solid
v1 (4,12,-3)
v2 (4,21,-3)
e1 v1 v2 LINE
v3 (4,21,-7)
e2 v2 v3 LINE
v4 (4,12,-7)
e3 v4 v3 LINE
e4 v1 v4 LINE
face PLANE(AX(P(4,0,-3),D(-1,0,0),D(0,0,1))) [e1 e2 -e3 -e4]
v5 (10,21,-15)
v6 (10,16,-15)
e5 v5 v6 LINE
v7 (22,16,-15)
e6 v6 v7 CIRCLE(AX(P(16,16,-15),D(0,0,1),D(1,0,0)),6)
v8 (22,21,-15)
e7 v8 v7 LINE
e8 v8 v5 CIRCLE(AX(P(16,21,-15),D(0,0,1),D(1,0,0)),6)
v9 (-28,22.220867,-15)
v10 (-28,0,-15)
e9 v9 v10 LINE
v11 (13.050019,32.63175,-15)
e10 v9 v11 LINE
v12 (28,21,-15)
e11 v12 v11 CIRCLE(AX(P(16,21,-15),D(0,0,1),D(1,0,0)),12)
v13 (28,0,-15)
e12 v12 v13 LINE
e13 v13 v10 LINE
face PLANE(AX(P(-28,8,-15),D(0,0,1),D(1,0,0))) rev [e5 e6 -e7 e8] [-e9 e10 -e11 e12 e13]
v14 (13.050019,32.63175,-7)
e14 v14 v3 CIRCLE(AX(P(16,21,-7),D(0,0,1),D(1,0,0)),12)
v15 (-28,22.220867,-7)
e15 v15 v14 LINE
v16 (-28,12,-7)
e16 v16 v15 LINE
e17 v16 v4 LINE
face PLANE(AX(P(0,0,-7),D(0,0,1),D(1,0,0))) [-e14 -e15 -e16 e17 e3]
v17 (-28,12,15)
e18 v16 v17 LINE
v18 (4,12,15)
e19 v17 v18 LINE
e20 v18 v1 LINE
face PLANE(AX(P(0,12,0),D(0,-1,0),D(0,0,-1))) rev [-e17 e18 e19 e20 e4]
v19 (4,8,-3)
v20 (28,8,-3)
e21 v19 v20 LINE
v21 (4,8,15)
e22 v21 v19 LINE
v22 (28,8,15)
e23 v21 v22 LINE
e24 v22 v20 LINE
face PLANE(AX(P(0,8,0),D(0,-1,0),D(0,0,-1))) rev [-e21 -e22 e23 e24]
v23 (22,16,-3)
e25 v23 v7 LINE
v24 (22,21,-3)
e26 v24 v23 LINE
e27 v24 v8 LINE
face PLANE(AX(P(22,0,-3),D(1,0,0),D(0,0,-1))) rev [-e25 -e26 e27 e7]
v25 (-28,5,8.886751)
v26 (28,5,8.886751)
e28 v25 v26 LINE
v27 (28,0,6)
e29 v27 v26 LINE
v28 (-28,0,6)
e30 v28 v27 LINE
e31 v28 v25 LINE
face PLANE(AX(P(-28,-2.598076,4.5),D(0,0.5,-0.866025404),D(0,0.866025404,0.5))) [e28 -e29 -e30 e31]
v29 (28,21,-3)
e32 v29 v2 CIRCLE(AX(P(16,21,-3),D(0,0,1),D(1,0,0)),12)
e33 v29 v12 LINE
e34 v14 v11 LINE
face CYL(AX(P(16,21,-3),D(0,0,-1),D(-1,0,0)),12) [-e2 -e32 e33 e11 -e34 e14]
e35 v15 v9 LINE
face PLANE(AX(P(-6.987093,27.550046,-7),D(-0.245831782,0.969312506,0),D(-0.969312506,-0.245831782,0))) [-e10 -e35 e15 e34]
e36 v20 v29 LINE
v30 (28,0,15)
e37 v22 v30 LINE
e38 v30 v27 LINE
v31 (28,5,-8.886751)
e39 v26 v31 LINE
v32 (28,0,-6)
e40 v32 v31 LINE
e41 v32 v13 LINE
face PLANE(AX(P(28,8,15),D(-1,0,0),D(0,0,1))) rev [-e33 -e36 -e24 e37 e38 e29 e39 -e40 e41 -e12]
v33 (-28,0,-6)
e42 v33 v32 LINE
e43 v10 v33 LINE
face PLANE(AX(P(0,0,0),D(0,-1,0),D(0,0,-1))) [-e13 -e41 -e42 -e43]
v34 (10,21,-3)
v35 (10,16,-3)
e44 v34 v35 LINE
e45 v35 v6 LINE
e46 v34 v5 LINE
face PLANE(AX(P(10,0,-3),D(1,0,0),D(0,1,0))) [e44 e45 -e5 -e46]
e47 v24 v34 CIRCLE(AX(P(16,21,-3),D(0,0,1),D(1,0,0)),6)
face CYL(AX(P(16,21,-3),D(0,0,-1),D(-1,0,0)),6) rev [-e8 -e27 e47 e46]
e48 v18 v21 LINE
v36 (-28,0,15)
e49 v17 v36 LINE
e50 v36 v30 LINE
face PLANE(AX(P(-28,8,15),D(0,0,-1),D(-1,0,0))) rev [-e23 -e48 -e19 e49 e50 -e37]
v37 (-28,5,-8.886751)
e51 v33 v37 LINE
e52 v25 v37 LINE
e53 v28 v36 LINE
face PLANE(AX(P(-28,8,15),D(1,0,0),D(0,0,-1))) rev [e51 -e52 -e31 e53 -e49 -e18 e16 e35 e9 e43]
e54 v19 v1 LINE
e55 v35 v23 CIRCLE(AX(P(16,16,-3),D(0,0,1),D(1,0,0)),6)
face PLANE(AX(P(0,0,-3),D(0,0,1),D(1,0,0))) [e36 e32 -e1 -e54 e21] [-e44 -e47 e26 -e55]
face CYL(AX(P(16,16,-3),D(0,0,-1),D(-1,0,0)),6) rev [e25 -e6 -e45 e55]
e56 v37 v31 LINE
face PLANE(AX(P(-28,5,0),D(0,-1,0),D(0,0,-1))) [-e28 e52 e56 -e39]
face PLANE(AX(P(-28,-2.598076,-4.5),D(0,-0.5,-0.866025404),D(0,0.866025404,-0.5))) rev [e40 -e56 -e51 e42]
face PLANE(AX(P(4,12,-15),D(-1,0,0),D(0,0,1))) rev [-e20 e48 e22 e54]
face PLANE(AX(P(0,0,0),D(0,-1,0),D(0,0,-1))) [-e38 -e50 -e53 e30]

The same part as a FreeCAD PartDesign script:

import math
import FreeCAD as App
import Part
import Sketcher
from FreeCAD import Vector
Q = App.Units.Quantity

doc = App.newDocument("Part")
body = doc.addObject("PartDesign::Body", "Body")

# Sketch on XZ plane
sketch1 = body.newObject("Sketcher::SketchObject", "Sketch")
sketch1.AttachmentSupport = (doc.getObject("XZ_Plane"), [""])
sketch1.MapMode = "FlatFace"
sketch1.addGeometry(Part.LineSegment(Vector(-28, -15, 0), Vector(-28, 15, 0)), False)
sketch1.addGeometry(Part.LineSegment(Vector(-28, 15, 0), Vector(28, 15, 0)), False)
sketch1.addGeometry(Part.LineSegment(Vector(28, 15, 0), Vector(28, -15, 0)), False)
sketch1.addGeometry(Part.LineSegment(Vector(28, -15, 0), Vector(-28, -15, 0)), False)
sketch1.addConstraint(Sketcher.Constraint("Coincident", 0, 2, 1, 1))
sketch1.addConstraint(Sketcher.Constraint("Coincident", 1, 2, 2, 1))
sketch1.addConstraint(Sketcher.Constraint("Coincident", 2, 2, 3, 1))
sketch1.addConstraint(Sketcher.Constraint("Coincident", 3, 2, 0, 1))
sketch1.addConstraint(Sketcher.Constraint("Vertical", 0))
sketch1.addConstraint(Sketcher.Constraint("Horizontal", 1))
sketch1.addConstraint(Sketcher.Constraint("Vertical", 2))
sketch1.addConstraint(Sketcher.Constraint("Horizontal", 3))
sketch1.addConstraint(Sketcher.Constraint("Symmetric", 0, 2, 2, 2, -1, 1))
sketch1.addConstraint(Sketcher.Constraint("DistanceX", 1, 1, 1, 2, Q("56 mm")))
sketch1.addConstraint(Sketcher.Constraint("DistanceY", 0, 1, 0, 2, Q("30 mm")))
pad1 = body.newObject("PartDesign::Pad", "Pad")
pad1.Profile = sketch1
pad1.Length = 8
pad1.Reversed = True

# Sketch on XZ plane
sketch2 = body.newObject("Sketcher::SketchObject", "Sketch001")
sketch2.AttachmentSupport = (doc.getObject("XZ_Plane"), [""])
sketch2.MapMode = "FlatFace"
sketch2.AttachmentOffset = App.Placement(Vector(0, 0, -8), App.Rotation())
sketch2.addGeometry(Part.LineSegment(Vector(-28, -15, 0), Vector(-28, 15, 0)), False)
sketch2.addGeometry(Part.LineSegment(Vector(-28, 15, 0), Vector(4, 15, 0)), False)
sketch2.addGeometry(Part.LineSegment(Vector(4, 15, 0), Vector(4, -15, 0)), False)
sketch2.addGeometry(Part.LineSegment(Vector(4, -15, 0), Vector(-28, -15, 0)), False)
sketch2.addConstraint(Sketcher.Constraint("Coincident", 0, 2, 1, 1))
sketch2.addConstraint(Sketcher.Constraint("Coincident", 1, 2, 2, 1))
sketch2.addConstraint(Sketcher.Constraint("Coincident", 2, 2, 3, 1))
sketch2.addConstraint(Sketcher.Constraint("Coincident", 3, 2, 0, 1))
sketch2.addConstraint(Sketcher.Constraint("Vertical", 0))
sketch2.addConstraint(Sketcher.Constraint("Horizontal", 1))
sketch2.addConstraint(Sketcher.Constraint("Vertical", 2))
sketch2.addConstraint(Sketcher.Constraint("Horizontal", 3))
sketch2.addConstraint(Sketcher.Constraint("DistanceX", 1, 1, 1, 2, Q("32 mm")))
sketch2.addConstraint(Sketcher.Constraint("DistanceY", 0, 1, 0, 2, Q("30 mm")))
sketch2.addConstraint(Sketcher.Constraint("DistanceX", 0, 2, -1, 1, Q("28 mm")))
sketch2.addConstraint(Sketcher.Constraint("DistanceY", -1, 1, 0, 2, Q("15 mm")))
pad2 = body.newObject("PartDesign::Pad", "Pad001")
pad2.Profile = sketch2
pad2.Length = 4
pad2.Reversed = True

# Sketch on XY plane
sketch3 = body.newObject("Sketcher::SketchObject", "Sketch002")
sketch3.AttachmentSupport = (doc.getObject("XY_Plane"), [""])
sketch3.MapMode = "FlatFace"
sketch3.AttachmentOffset = App.Placement(Vector(0, 0, -15), App.Rotation())
sketch3.addGeometry(Part.LineSegment(Vector(28, 8, 0), Vector(28, 21, 0)), False)
sketch3.addGeometry(Part.ArcOfCircle(Part.Circle(Vector(16, 21, 0), Vector(0, 0, 1), 12), math.radians(0), math.radians(180)), False)
sketch3.addGeometry(Part.LineSegment(Vector(4, 21, 0), Vector(4, 8, 0)), False)
sketch3.addGeometry(Part.LineSegment(Vector(4, 8, 0), Vector(28, 8, 0)), False)
sketch3.addGeometry(Part.ArcOfCircle(Part.Circle(Vector(16, 16, 0), Vector(0, 0, 1), 6), math.radians(180), math.radians(360)), False)
sketch3.addGeometry(Part.LineSegment(Vector(10, 16, 0), Vector(10, 21, 0)), False)
sketch3.addGeometry(Part.ArcOfCircle(Part.Circle(Vector(16, 21, 0), Vector(0, 0, 1), 6), math.radians(0), math.radians(180)), False)
sketch3.addGeometry(Part.LineSegment(Vector(22, 21, 0), Vector(22, 16, 0)), False)
sketch3.addConstraint(Sketcher.Constraint("Tangent", 0, 2, 1, 1))
sketch3.addConstraint(Sketcher.Constraint("Tangent", 1, 2, 2, 1))
sketch3.addConstraint(Sketcher.Constraint("Coincident", 2, 2, 3, 1))
sketch3.addConstraint(Sketcher.Constraint("Coincident", 3, 2, 0, 1))
sketch3.addConstraint(Sketcher.Constraint("Tangent", 4, 1, 5, 1))
sketch3.addConstraint(Sketcher.Constraint("Tangent", 5, 2, 6, 2))
sketch3.addConstraint(Sketcher.Constraint("Tangent", 6, 1, 7, 1))
sketch3.addConstraint(Sketcher.Constraint("Tangent", 7, 2, 4, 2))
sketch3.addConstraint(Sketcher.Constraint("Vertical", 0))
sketch3.addConstraint(Sketcher.Constraint("Vertical", 2))
sketch3.addConstraint(Sketcher.Constraint("Horizontal", 3))
sketch3.addConstraint(Sketcher.Constraint("Vertical", 5))
sketch3.addConstraint(Sketcher.Constraint("Vertical", 7))
sketch3.addConstraint(Sketcher.Constraint("Coincident", 6, 3, 1, 3))
sketch3.addConstraint(Sketcher.Constraint("Radius", 1, Q("12 mm")))
sketch3.addConstraint(Sketcher.Constraint("Radius", 4, Q("6 mm")))
sketch3.addConstraint(Sketcher.Constraint("DistanceY", 0, 1, 0, 2, Q("13 mm")))
sketch3.addConstraint(Sketcher.Constraint("DistanceY", 5, 1, 5, 2, Q("5 mm")))
sketch3.addConstraint(Sketcher.Constraint("DistanceX", -1, 1, 1, 3, Q("16 mm")))
sketch3.addConstraint(Sketcher.Constraint("DistanceY", -1, 1, 1, 3, Q("21 mm")))
pad3 = body.newObject("PartDesign::Pad", "Pad002")
pad3.Profile = sketch3
pad3.Length = 12

# Sketch on XY plane
sketch4 = body.newObject("Sketcher::SketchObject", "Sketch003")
sketch4.AttachmentSupport = (doc.getObject("XY_Plane"), [""])
sketch4.MapMode = "FlatFace"
sketch4.AttachmentOffset = App.Placement(Vector(0, 0, -15), App.Rotation())
sketch4.addGeometry(Part.LineSegment(Vector(-28, 22, 0), Vector(-28, 12, 0)), False)
sketch4.addGeometry(Part.LineSegment(Vector(-28, 12, 0), Vector(4, 12, 0)), False)
sketch4.addGeometry(Part.LineSegment(Vector(4, 12, 0), Vector(4, 21, 0)), False)
sketch4.addGeometry(Part.ArcOfCircle(Part.Circle(Vector(16, 21, 0), Vector(0, 0, 1), 12), math.radians(104), math.radians(180)), False)
sketch4.addGeometry(Part.LineSegment(Vector(13, 33, 0), Vector(-28, 22, 0)), False)
sketch4.addConstraint(Sketcher.Constraint("Coincident", 0, 2, 1, 1))
sketch4.addConstraint(Sketcher.Constraint("Coincident", 1, 2, 2, 1))
sketch4.addConstraint(Sketcher.Constraint("Tangent", 2, 2, 3, 2))
sketch4.addConstraint(Sketcher.Constraint("Tangent", 3, 1, 4, 1))
sketch4.addConstraint(Sketcher.Constraint("Coincident", 4, 2, 0, 1))
sketch4.addConstraint(Sketcher.Constraint("Vertical", 0))
sketch4.addConstraint(Sketcher.Constraint("Horizontal", 1))
sketch4.addConstraint(Sketcher.Constraint("Vertical", 2))
sketch4.addConstraint(Sketcher.Constraint("Radius", 3, Q("12 mm")))
sketch4.addConstraint(Sketcher.Constraint("DistanceX", 1, 1, 1, 2, Q("32 mm")))
sketch4.addConstraint(Sketcher.Constraint("DistanceY", 2, 1, 2, 2, Q("9 mm")))
sketch4.addConstraint(Sketcher.Constraint("DistanceX", -1, 1, 3, 3, Q("16 mm")))
sketch4.addConstraint(Sketcher.Constraint("DistanceY", -1, 1, 3, 3, Q("21 mm")))
sketch4.addConstraint(Sketcher.Constraint("DistanceY", 0, 2, 0, 1, Q("10.220867 mm")))
pad4 = body.newObject("PartDesign::Pad", "Pad003")
pad4.Profile = sketch4
pad4.Length = 8

# Sketch on YZ plane
sketch5 = body.newObject("Sketcher::SketchObject", "Sketch004")
sketch5.AttachmentSupport = (doc.getObject("YZ_Plane"), [""])
sketch5.MapMode = "FlatFace"
sketch5.addGeometry(Part.LineSegment(Vector(0, -6, 0), Vector(5, -9, 0)), False)
sketch5.addGeometry(Part.LineSegment(Vector(5, -9, 0), Vector(5, 9, 0)), False)
sketch5.addGeometry(Part.LineSegment(Vector(5, 9, 0), Vector(0, 6, 0)), False)
sketch5.addGeometry(Part.LineSegment(Vector(0, 6, 0), Vector(0, -6, 0)), False)
sketch5.addConstraint(Sketcher.Constraint("Coincident", 0, 2, 1, 1))
sketch5.addConstraint(Sketcher.Constraint("Coincident", 1, 2, 2, 1))
sketch5.addConstraint(Sketcher.Constraint("Coincident", 2, 2, 3, 1))
sketch5.addConstraint(Sketcher.Constraint("Coincident", 3, 2, 0, 1))
sketch5.addConstraint(Sketcher.Constraint("Vertical", 1))
sketch5.addConstraint(Sketcher.Constraint("Vertical", 3))
sketch5.addConstraint(Sketcher.Constraint("Symmetric", 2, 2, 3, 2, -1, 1))
sketch5.addConstraint(Sketcher.Constraint("Equal", 0, 2))
sketch5.addConstraint(Sketcher.Constraint("DistanceY", 3, 2, 3, 1, Q("12 mm")))
sketch5.addConstraint(Sketcher.Constraint("Angle", 0, Q("-30 deg")))
sketch5.addConstraint(Sketcher.Constraint("DistanceX", -1, 1, 0, 2, Q("5 mm")))
pocket1 = body.newObject("PartDesign::Pocket", "Pocket")
pocket1.Profile = sketch5
pocket1.Type = "ThroughAll"
pocket1.Midplane = True

doc.recompute()
